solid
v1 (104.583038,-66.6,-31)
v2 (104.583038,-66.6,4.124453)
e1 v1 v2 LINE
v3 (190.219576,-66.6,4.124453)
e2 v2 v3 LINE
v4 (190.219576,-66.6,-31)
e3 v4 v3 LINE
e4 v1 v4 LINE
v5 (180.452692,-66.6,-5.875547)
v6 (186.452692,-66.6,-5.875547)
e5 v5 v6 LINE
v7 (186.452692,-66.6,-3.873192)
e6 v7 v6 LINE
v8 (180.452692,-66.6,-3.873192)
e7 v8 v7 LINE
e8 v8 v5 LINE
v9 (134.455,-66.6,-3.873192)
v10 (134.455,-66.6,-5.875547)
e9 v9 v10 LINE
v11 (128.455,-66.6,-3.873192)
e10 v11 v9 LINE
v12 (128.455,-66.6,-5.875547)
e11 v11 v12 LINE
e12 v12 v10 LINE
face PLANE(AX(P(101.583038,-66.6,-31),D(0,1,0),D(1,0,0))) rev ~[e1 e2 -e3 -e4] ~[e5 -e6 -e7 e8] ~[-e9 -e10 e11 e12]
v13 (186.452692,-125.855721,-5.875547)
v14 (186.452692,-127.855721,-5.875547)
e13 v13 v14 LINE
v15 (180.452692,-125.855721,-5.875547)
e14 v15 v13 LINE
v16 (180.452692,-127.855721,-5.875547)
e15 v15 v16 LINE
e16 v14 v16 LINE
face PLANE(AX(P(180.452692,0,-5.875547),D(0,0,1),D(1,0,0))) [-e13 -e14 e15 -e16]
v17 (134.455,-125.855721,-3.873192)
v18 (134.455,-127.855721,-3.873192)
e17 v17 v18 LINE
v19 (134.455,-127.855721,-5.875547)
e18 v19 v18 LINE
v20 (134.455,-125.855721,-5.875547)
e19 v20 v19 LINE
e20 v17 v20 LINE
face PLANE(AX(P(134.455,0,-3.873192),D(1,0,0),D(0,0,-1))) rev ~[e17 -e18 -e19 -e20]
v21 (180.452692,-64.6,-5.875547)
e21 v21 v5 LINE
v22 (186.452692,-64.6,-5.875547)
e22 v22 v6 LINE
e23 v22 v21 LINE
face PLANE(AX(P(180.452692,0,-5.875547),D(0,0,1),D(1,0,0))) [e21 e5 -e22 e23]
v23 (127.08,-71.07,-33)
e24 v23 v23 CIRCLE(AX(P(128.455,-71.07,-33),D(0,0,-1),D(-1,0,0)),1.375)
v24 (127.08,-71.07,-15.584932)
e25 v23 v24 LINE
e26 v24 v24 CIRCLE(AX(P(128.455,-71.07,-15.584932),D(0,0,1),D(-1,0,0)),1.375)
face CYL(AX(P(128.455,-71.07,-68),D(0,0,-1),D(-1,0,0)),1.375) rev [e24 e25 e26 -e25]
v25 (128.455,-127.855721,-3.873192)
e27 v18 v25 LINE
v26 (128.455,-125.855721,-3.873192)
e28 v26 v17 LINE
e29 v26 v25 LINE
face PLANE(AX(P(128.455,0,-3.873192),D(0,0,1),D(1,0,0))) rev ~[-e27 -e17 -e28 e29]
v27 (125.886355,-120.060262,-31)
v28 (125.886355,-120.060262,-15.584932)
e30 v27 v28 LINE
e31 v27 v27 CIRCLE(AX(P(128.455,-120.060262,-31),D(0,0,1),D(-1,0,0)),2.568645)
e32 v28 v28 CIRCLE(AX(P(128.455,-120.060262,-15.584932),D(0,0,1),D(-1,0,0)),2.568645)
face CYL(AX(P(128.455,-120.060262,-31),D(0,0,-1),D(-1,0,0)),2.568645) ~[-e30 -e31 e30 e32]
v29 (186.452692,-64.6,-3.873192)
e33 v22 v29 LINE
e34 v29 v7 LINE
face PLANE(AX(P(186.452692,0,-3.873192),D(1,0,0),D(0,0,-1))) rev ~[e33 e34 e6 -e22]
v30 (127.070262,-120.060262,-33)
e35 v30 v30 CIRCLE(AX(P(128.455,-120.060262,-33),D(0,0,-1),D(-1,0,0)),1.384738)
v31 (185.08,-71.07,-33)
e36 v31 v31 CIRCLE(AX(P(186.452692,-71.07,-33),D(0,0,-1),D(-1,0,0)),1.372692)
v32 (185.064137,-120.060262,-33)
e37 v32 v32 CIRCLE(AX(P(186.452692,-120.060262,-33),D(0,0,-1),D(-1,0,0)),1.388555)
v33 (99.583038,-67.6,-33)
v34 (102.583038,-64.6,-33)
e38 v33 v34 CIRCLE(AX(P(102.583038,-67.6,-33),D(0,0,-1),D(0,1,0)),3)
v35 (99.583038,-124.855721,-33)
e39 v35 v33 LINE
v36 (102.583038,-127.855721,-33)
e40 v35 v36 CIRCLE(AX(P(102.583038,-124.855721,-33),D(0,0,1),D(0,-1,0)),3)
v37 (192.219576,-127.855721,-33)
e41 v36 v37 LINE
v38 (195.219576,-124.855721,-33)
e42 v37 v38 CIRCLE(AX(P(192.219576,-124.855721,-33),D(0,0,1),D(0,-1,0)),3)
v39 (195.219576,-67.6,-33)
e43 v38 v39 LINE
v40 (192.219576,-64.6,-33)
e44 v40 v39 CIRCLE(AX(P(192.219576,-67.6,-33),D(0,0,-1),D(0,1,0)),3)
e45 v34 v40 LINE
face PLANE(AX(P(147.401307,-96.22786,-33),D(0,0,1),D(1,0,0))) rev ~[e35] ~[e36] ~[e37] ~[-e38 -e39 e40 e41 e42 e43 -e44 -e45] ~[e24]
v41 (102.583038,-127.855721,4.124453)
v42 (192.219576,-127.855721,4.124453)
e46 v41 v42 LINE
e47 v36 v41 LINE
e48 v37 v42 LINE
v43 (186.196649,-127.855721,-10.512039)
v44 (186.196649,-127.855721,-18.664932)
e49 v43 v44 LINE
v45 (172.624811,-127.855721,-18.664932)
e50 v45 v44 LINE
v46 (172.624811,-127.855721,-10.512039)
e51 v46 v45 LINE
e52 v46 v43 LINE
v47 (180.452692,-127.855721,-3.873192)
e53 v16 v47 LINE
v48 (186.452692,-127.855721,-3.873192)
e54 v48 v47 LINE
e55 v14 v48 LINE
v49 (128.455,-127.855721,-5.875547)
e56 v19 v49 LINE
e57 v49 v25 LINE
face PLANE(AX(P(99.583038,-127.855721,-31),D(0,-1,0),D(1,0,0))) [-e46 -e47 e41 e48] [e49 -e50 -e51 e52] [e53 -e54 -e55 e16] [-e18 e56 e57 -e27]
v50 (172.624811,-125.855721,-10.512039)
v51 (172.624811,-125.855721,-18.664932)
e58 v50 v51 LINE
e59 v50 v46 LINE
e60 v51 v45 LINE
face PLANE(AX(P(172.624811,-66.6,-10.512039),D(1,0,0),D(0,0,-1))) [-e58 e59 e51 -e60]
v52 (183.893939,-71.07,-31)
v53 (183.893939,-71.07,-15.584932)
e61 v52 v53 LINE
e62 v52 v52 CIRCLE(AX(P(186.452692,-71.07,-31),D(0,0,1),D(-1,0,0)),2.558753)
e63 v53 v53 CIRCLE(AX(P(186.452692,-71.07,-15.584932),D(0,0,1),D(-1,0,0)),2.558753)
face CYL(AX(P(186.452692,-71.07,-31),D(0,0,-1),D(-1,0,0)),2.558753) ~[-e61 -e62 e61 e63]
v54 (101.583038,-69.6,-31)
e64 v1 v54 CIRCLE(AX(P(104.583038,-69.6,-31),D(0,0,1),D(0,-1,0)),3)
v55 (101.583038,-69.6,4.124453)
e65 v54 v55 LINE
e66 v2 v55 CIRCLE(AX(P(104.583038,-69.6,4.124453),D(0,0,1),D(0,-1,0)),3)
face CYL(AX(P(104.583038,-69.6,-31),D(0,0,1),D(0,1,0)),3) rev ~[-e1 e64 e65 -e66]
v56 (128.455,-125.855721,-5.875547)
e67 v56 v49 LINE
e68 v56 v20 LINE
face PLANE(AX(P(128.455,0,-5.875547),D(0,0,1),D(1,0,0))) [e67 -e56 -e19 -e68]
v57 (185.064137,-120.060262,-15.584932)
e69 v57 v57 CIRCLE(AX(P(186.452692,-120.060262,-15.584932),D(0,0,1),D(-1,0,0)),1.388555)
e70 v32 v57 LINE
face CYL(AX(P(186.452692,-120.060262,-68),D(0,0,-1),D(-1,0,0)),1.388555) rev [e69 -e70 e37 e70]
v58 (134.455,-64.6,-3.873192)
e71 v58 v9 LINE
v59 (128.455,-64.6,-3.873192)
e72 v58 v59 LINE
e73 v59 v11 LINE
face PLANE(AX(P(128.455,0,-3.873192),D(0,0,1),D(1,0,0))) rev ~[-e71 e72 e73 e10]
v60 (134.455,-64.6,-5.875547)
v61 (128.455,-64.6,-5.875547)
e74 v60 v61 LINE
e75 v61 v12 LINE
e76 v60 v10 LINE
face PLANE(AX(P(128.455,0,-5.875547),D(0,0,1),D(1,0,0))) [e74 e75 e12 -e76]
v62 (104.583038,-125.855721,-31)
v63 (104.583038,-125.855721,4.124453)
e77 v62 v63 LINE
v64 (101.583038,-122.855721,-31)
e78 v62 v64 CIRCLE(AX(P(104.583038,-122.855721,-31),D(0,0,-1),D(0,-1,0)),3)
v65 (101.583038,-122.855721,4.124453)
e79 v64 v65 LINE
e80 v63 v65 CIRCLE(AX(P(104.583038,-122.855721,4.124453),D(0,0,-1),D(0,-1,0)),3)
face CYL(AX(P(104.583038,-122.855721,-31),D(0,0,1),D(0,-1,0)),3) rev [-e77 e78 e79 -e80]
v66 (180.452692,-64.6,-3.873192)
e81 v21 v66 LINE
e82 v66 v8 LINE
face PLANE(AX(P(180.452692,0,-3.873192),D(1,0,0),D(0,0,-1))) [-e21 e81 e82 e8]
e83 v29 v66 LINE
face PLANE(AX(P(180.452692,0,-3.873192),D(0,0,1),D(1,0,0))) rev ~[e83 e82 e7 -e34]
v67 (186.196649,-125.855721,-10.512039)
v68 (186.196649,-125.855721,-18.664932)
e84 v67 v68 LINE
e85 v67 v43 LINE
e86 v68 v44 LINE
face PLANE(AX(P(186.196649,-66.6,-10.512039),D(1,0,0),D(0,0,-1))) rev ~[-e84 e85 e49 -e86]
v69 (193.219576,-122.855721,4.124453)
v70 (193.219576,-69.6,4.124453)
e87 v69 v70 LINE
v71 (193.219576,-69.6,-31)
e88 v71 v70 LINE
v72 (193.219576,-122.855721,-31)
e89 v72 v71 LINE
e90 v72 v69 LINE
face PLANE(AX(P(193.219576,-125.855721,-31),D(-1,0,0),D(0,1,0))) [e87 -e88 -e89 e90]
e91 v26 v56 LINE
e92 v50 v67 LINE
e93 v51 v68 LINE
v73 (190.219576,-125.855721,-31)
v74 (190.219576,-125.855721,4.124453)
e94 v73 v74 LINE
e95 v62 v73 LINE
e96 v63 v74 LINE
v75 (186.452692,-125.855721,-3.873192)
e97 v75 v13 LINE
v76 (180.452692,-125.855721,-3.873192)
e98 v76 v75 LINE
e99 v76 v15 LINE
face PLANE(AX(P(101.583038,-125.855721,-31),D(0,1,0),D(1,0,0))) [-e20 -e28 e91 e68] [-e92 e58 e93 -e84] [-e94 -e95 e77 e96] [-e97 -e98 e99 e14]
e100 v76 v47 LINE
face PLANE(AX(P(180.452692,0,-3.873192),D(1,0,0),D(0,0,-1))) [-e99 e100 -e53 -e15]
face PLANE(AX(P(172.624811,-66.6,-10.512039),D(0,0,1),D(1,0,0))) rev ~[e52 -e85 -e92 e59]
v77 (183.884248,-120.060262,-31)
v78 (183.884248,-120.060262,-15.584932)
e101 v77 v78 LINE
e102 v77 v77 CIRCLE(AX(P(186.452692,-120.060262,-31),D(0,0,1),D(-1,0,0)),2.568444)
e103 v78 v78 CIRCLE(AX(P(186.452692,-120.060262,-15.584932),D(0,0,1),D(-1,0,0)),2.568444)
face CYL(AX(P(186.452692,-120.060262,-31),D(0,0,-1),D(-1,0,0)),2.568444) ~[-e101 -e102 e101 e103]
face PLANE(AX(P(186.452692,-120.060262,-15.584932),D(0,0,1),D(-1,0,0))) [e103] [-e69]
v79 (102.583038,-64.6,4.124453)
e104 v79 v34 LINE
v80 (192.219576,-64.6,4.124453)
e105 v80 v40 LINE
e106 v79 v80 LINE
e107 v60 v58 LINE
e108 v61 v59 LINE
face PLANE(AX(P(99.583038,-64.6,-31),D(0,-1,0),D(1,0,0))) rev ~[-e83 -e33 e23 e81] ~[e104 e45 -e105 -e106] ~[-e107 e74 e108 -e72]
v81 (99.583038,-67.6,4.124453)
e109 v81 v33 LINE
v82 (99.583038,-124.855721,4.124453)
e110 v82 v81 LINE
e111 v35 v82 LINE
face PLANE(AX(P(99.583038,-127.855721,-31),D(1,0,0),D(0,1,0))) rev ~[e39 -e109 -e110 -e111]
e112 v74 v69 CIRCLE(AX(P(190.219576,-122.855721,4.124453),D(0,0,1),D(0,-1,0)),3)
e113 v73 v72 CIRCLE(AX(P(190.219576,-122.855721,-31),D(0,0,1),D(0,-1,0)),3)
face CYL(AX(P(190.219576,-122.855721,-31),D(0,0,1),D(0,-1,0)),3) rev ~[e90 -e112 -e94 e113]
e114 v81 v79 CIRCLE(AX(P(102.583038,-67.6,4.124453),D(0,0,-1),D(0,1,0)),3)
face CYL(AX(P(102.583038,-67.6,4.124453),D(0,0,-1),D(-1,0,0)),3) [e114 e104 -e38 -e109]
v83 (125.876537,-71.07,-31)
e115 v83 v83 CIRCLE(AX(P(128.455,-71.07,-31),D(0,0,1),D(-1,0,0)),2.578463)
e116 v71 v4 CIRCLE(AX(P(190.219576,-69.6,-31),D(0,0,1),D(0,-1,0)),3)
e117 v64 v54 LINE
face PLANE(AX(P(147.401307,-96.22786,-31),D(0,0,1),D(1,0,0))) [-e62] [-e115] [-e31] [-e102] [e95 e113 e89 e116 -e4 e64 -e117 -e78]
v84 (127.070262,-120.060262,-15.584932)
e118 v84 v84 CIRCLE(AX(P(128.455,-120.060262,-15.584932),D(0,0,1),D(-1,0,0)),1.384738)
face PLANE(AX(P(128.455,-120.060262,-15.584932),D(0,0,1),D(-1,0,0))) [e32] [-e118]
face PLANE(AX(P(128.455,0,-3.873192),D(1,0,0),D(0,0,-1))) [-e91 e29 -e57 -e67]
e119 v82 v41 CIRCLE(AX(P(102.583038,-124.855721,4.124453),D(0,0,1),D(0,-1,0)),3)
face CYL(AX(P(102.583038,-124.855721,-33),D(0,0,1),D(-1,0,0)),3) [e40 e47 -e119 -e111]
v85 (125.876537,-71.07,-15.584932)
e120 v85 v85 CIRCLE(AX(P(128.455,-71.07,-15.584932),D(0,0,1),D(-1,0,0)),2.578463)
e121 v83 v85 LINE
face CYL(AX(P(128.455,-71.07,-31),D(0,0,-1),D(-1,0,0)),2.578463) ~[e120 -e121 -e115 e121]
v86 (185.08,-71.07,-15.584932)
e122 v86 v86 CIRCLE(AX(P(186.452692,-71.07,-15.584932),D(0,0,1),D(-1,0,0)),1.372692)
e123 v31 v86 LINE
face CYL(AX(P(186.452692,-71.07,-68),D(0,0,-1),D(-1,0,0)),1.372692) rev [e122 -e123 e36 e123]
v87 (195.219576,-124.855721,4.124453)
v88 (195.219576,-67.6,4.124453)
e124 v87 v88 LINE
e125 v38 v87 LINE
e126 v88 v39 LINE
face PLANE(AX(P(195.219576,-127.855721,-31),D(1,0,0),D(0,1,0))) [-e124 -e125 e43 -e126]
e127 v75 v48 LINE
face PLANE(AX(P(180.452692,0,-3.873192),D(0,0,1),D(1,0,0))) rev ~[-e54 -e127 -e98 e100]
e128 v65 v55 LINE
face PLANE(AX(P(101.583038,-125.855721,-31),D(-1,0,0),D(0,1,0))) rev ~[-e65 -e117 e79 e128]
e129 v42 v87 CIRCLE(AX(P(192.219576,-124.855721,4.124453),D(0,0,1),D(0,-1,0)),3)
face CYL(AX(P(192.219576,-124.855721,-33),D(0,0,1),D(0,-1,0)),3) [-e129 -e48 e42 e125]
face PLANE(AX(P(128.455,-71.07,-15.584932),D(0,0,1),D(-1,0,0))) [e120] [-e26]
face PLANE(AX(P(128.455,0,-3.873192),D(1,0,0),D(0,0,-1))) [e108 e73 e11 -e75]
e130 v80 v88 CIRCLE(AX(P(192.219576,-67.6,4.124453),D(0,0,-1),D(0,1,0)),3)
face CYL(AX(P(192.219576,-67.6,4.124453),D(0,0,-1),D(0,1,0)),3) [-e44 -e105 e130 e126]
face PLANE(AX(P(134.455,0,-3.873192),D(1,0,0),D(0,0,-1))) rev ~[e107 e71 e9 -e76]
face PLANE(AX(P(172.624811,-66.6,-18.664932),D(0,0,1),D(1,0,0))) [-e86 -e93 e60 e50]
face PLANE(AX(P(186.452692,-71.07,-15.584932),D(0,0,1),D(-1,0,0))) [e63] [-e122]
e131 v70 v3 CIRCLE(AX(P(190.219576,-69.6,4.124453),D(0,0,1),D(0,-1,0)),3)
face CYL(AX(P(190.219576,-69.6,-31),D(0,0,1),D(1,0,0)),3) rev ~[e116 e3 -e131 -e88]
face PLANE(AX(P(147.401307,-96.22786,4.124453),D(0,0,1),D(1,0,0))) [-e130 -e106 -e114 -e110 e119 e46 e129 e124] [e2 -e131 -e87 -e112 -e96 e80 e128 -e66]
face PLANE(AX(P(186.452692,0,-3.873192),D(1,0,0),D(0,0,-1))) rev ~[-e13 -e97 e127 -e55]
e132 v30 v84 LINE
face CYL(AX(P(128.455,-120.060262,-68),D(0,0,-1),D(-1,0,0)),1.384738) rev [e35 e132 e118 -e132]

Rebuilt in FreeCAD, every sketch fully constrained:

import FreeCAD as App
import Part
import Sketcher
from FreeCAD import Vector
Q = App.Units.Quantity


def edges_at(feature, points):
    """Names of the edges that pass closest to the given points."""
    edges = feature.Shape.Edges
    near = lambda p: min(range(len(edges)), key=lambda i: edges[i].distToShape(Part.Vertex(*p))[0])
    return sorted({f"Edge{near(p) + 1}" for p in points})

doc = App.newDocument("Part")
body = doc.addObject("PartDesign::Body", "Body")

sketch1 = doc.addObject("Sketcher::SketchObject", "Sketch")
body.addObject(sketch1)
sketch1.AttachmentSupport = (doc.XY_Plane, [""])
sketch1.MapMode = "FlatFace"
sketch1.addGeometry([
    Part.LineSegment(Vector(99.583038, -64.6, 0), Vector(99.583038, -127.855721, 0)),
    Part.LineSegment(Vector(99.583038, -127.855721, 0), Vector(195.219576, -127.855721, 0)),
    Part.LineSegment(Vector(195.219576, -127.855721, 0), Vector(195.219576, -64.6, 0)),
    Part.LineSegment(Vector(195.219576, -64.6, 0), Vector(99.583038, -64.6, 0)),
    Part.LineSegment(Vector(193.219576, -125.855721, 0), Vector(101.583038, -125.855721, 0)),
    Part.LineSegment(Vector(101.583038, -125.855721, 0), Vector(101.583038, -66.6, 0)),
    Part.LineSegment(Vector(101.583038, -66.6, 0), Vector(193.219576, -66.6, 0)),
    Part.LineSegment(Vector(193.219576, -66.6, 0), Vector(193.219576, -125.855721, 0)),
], False)
sketch1.addConstraint([
    Sketcher.Constraint("Coincident", 0, 2, 1, 1),
    Sketcher.Constraint("Coincident", 1, 2, 2, 1),
    Sketcher.Constraint("Coincident", 2, 2, 3, 1),
    Sketcher.Constraint("Coincident", 3, 2, 0, 1),
    Sketcher.Constraint("Coincident", 4, 2, 5, 1),
    Sketcher.Constraint("Coincident", 5, 2, 6, 1),
    Sketcher.Constraint("Coincident", 6, 2, 7, 1),
    Sketcher.Constraint("Coincident", 7, 2, 4, 1),
    Sketcher.Constraint("Vertical", 0),
    Sketcher.Constraint("Horizontal", 1),
    Sketcher.Constraint("Vertical", 2),
    Sketcher.Constraint("Horizontal", 3),
    Sketcher.Constraint("Horizontal", 4),
    Sketcher.Constraint("Vertical", 5),
    Sketcher.Constraint("Horizontal", 6),
    Sketcher.Constraint("Vertical", 7),
    Sketcher.Constraint("DistanceX", 0, 2, 4, 2, Q("2 mm")),
    Sketcher.Constraint("DistanceY", 0, 2, 4, 2, Q("2 mm")),
    Sketcher.Constraint("DistanceY", 5, 2, 3, 2, Q("2 mm")),
    Sketcher.Constraint("DistanceX", 6, 2, 2, 2, Q("2 mm")),
    Sketcher.Constraint("DistanceY", 2, 2, -1, 1, Q("64.6 mm")),
    Sketcher.Constraint("DistanceY", 0, 2, 0, 1, Q("63.255721 mm")),
    Sketcher.Constraint("DistanceX", 1, 1, 1, 2, Q("95.636538 mm")),
    Sketcher.Constraint("DistanceX", -1, 1, 0, 2, Q("99.583038 mm")),
])
pad1 = doc.addObject("PartDesign::Pad", "Pad")
body.addObject(pad1)
pad1.Profile = sketch1
pad1.Type = "TwoLengths"
pad1.Length = 4.124453
pad1.Length2 = 31

sketch2 = doc.addObject("Sketcher::SketchObject", "Sketch001")
body.addObject(sketch2)
sketch2.AttachmentSupport = (doc.XZ_Plane, [""])
sketch2.MapMode = "FlatFace"
sketch2.AttachmentOffset = App.Placement(Vector(0, 0, 66.6), App.Rotation())
sketch2.addGeometry([
    Part.LineSegment(Vector(172.624811, -18.664932, 0), Vector(172.624811, -10.512039, 0)),
    Part.LineSegment(Vector(172.624811, -10.512039, 0), Vector(186.196649, -10.512039, 0)),
    Part.LineSegment(Vector(186.196649, -10.512039, 0), Vector(186.196649, -18.664932, 0)),
    Part.LineSegment(Vector(186.196649, -18.664932, 0), Vector(172.624811, -18.664932, 0)),
], False)
sketch2.addConstraint([
    Sketcher.Constraint("Coincident", 0, 2, 1, 1),
    Sketcher.Constraint("Coincident", 1, 2, 2, 1),
    Sketcher.Constraint("Coincident", 2, 2, 3, 1),
    Sketcher.Constraint("Coincident", 3, 2, 0, 1),
    Sketcher.Constraint("Vertical", 0),
    Sketcher.Constraint("Horizontal", 1),
    Sketcher.Constraint("Vertical", 2),
    Sketcher.Constraint("Horizontal", 3),
    Sketcher.Constraint("DistanceX", 1, 1, 1, 2, Q("13.571839 mm")),
    Sketcher.Constraint("DistanceY", 0, 1, 0, 2, Q("8.152893 mm")),
    Sketcher.Constraint("DistanceX", -1, 1, 0, 2, Q("172.624811 mm")),
    Sketcher.Constraint("DistanceY", 0, 2, -1, 1, Q("10.512039 mm")),
])
pocket1 = doc.addObject("PartDesign::Pocket", "Pocket")
body.addObject(pocket1)
pocket1.Profile = sketch2
pocket1.Length = 81
pocket1.Reversed = True

sketch3 = doc.addObject("Sketcher::SketchObject", "Sketch002")
body.addObject(sketch3)
sketch3.AttachmentSupport = (doc.XY_Plane, [""])
sketch3.MapMode = "FlatFace"
sketch3.AttachmentOffset = App.Placement(Vector(0, 0, -31), App.Rotation())
sketch3.addGeometry([
    Part.LineSegment(Vector(99.583038, -64.6, 0), Vector(99.583038, -127.855721, 0)),
    Part.LineSegment(Vector(99.583038, -127.855721, 0), Vector(195.219576, -127.855721, 0)),
    Part.LineSegment(Vector(195.219576, -127.855721, 0), Vector(195.219576, -64.6, 0)),
    Part.LineSegment(Vector(195.219576, -64.6, 0), Vector(99.583038, -64.6, 0)),
], False)
sketch3.addConstraint([
    Sketcher.Constraint("Coincident", 0, 2, 1, 1),
    Sketcher.Constraint("Coincident", 1, 2, 2, 1),
    Sketcher.Constraint("Coincident", 2, 2, 3, 1),
    Sketcher.Constraint("Coincident", 3, 2, 0, 1),
    Sketcher.Constraint("Vertical", 0),
    Sketcher.Constraint("Horizontal", 1),
    Sketcher.Constraint("Vertical", 2),
    Sketcher.Constraint("Horizontal", 3),
    Sketcher.Constraint("DistanceY", 2, 2, -1, 1, Q("64.6 mm")),
    Sketcher.Constraint("DistanceY", 0, 2, 0, 1, Q("63.255721 mm")),
    Sketcher.Constraint("DistanceX", 1, 1, 1, 2, Q("95.636538 mm")),
    Sketcher.Constraint("DistanceX", -1, 1, 0, 2, Q("99.583038 mm")),
])
pad2 = doc.addObject("PartDesign::Pad", "Pad001")
body.addObject(pad2)
pad2.Profile = sketch3
pad2.Length = 2
pad2.Reversed = True

sketch4 = doc.addObject("Sketcher::SketchObject", "Sketch003")
body.addObject(sketch4)
sketch4.AttachmentSupport = (doc.XZ_Plane, [""])
sketch4.MapMode = "FlatFace"
sketch4.addGeometry([
    Part.LineSegment(Vector(128.455, -5.875547, 0), Vector(128.455, -3.873192, 0)),
    Part.LineSegment(Vector(128.455, -3.873192, 0), Vector(134.455, -3.873192, 0)),
    Part.LineSegment(Vector(134.455, -3.873192, 0), Vector(134.455, -5.875547, 0)),
    Part.LineSegment(Vector(134.455, -5.875547, 0), Vector(128.455, -5.875547, 0)),
    Part.LineSegment(Vector(180.452692, -5.875547, 0), Vector(180.452692, -3.873192, 0)),
    Part.LineSegment(Vector(180.452692, -3.873192, 0), Vector(186.452692, -3.873192, 0)),
    Part.LineSegment(Vector(186.452692, -3.873192, 0), Vector(186.452692, -5.875547, 0)),
    Part.LineSegment(Vector(186.452692, -5.875547, 0), Vector(180.452692, -5.875547, 0)),
], False)
sketch4.addConstraint([
    Sketcher.Constraint("Coincident", 0, 2, 1, 1),
    Sketcher.Constraint("Coincident", 1, 2, 2, 1),
    Sketcher.Constraint("Coincident", 2, 2, 3, 1),
    Sketcher.Constraint("Coincident", 3, 2, 0, 1),
    Sketcher.Constraint("Coincident", 4, 2, 5, 1),
    Sketcher.Constraint("Coincident", 5, 2, 6, 1),
    Sketcher.Constraint("Coincident", 6, 2, 7, 1),
    Sketcher.Constraint("Coincident", 7, 2, 4, 1),
    Sketcher.Constraint("Vertical", 0),
    Sketcher.Constraint("Horizontal", 1),
    Sketcher.Constraint("Vertical", 2),
    Sketcher.Constraint("Horizontal", 3),
    Sketcher.Constraint("Vertical", 4),
    Sketcher.Constraint("Horizontal", 5),
    Sketcher.Constraint("Vertical", 6),
    Sketcher.Constraint("Horizontal", 7),
    Sketcher.Constraint("Horizontal", 1, 2, 4, 2),
    Sketcher.Constraint("Horizontal", 3, 2, 6, 2),
    Sketcher.Constraint("Equal", 3, 5),
    Sketcher.Constraint("DistanceX", 1, 1, 1, 2, Q("6 mm")),
    Sketcher.Constraint("DistanceX", -1, 1, 0, 2, Q("128.455 mm")),
    Sketcher.Constraint("DistanceY", 0, 1, 0, 2, Q("2.002355 mm")),
    Sketcher.Constraint("DistanceY", 0, 2, -1, 1, Q("3.873192 mm")),
    Sketcher.Constraint("DistanceX", -1, 1, 4, 2, Q("180.452692 mm")),
])
pocket2 = doc.addObject("PartDesign::Pocket", "Pocket001")
body.addObject(pocket2)
pocket2.Profile = sketch4
pocket2.Length = 152
pocket2.Reversed = True
doc.recompute()

fillet = doc.addObject("PartDesign::Fillet", "Fillet")
body.addObject(fillet)
fillet.Base = (pocket2, edges_at(pocket2, [
    (101.583, -125.856, -13.438),
    (101.583, -66.6, -13.438),
    (193.22, -66.6, -13.438),
    (195.22, -64.6, -14.438),
    (193.22, -125.856, -13.438),
    (195.22, -127.856, -14.438),
    (99.583, -64.6, -14.438),
    (99.583, -127.856, -14.438),
]))
fillet.Radius = 3

sketch5 = doc.addObject("Sketcher::SketchObject", "Sketch004")
body.addObject(sketch5)
sketch5.AttachmentSupport = (doc.XY_Plane, [""])
sketch5.MapMode = "FlatFace"
sketch5.AttachmentOffset = App.Placement(Vector(0, 0, -31), App.Rotation())
sketch5.addGeometry([
    Part.Circle(Vector(128.455, -71.07, 0), Vector(0, 0, 1), 2.578463),
    Part.Circle(Vector(128.455, -71.07, 0), Vector(0, 0, 1), 1.375),
    Part.Circle(Vector(186.452692, -71.07, 0), Vector(0, 0, 1), 2.558753),
    Part.Circle(Vector(186.452692, -71.07, 0), Vector(0, 0, 1), 1.372692),
    Part.Circle(Vector(128.455, -120.060262, 0), Vector(0, 0, 1), 2.568645),
    Part.Circle(Vector(128.455, -120.060262, 0), Vector(0, 0, 1), 1.384738),
    Part.Circle(Vector(186.452692, -120.060262, 0), Vector(0, 0, 1), 2.568444),
    Part.Circle(Vector(186.452692, -120.060262, 0), Vector(0, 0, 1), 1.388555),
], False)
sketch5.addConstraint([
    Sketcher.Constraint("Coincident", 1, 3, 0, 3),
    Sketcher.Constraint("Coincident", 3, 3, 2, 3),
    Sketcher.Constraint("Coincident", 5, 3, 4, 3),
    Sketcher.Constraint("Coincident", 7, 3, 6, 3),
    Sketcher.Constraint("Horizontal", 1, 3, 2, 3),
    Sketcher.Constraint("Horizontal", 5, 3, 6, 3),
    Sketcher.Constraint("Vertical", 1, 3, 4, 3),
    Sketcher.Constraint("Vertical", 3, 3, 6, 3),
    Sketcher.Constraint("Diameter", 1, Q("2.75 mm")),
    Sketcher.Constraint("Diameter", 4, Q("5.137291 mm")),
    Sketcher.Constraint("Diameter", 7, Q("2.77711 mm")),
    Sketcher.Constraint("DistanceY", 0, 3, -1, 1, Q("71.07 mm")),
    Sketcher.Constraint("Diameter", 0, Q("5.156926 mm")),
    Sketcher.Constraint("Diameter", 2, Q("5.117505 mm")),
    Sketcher.Constraint("Diameter", 3, Q("2.745384 mm")),
    Sketcher.Constraint("Diameter", 5, Q("2.769475 mm")),
    Sketcher.Constraint("Diameter", 6, Q("5.136887 mm")),
    Sketcher.Constraint("DistanceX", -1, 1, 0, 3, Q("128.455 mm")),
    Sketcher.Constraint("DistanceX", -1, 1, 2, 3, Q("186.452692 mm")),
    Sketcher.Constraint("DistanceY", 4, 3, -1, 1, Q("120.060262 mm")),
])
pad3 = doc.addObject("PartDesign::Pad", "Pad002")
body.addObject(pad3)
pad3.Profile = sketch5
pad3.Length = 15.415068

sketch6 = doc.addObject("Sketcher::SketchObject", "Sketch005")
body.addObject(sketch6)
sketch6.AttachmentSupport = (doc.XY_Plane, [""])
sketch6.MapMode = "FlatFace"
sketch6.AttachmentOffset = App.Placement(Vector(0, 0, -68), App.Rotation())
sketch6.addGeometry([
    Part.Circle(Vector(128.455, -71.07, 0), Vector(0, 0, 1), 1.375),
    Part.Circle(Vector(186.452692, -120.060262, 0), Vector(0, 0, 1), 1.388555),
    Part.Circle(Vector(128.455, -120.060262, 0), Vector(0, 0, 1), 1.384738),
    Part.Circle(Vector(186.452692, -71.07, 0), Vector(0, 0, 1), 1.372692),
], False)
sketch6.addConstraint([
    Sketcher.Constraint("Horizontal", 1, 3, 2, 3),
    Sketcher.Constraint("Horizontal", 0, 3, 3, 3),
    Sketcher.Constraint("Vertical", 0, 3, 2, 3),
    Sketcher.Constraint("Vertical", 1, 3, 3, 3),
    Sketcher.Constraint("Diameter", 0, Q("2.75 mm")),
    Sketcher.Constraint("Diameter", 1, Q("2.77711 mm")),
    Sketcher.Constraint("DistanceY", 0, 3, -1, 1, Q("71.07 mm")),
    Sketcher.Constraint("Diameter", 2, Q("2.769475 mm")),
    Sketcher.Constraint("Diameter", 3, Q("2.745384 mm")),
    Sketcher.Constraint("DistanceX", -1, 1, 0, 3, Q("128.455 mm")),
    Sketcher.Constraint("DistanceX", -1, 1, 1, 3, Q("186.452692 mm")),
    Sketcher.Constraint("DistanceY", 1, 3, -1, 1, Q("120.060262 mm")),
])
pocket3 = doc.addObject("PartDesign::Pocket", "Pocket002")
body.addObject(pocket3)
pocket3.Profile = sketch6
pocket3.Length = 68
pocket3.Reversed = True

doc.recompute()
